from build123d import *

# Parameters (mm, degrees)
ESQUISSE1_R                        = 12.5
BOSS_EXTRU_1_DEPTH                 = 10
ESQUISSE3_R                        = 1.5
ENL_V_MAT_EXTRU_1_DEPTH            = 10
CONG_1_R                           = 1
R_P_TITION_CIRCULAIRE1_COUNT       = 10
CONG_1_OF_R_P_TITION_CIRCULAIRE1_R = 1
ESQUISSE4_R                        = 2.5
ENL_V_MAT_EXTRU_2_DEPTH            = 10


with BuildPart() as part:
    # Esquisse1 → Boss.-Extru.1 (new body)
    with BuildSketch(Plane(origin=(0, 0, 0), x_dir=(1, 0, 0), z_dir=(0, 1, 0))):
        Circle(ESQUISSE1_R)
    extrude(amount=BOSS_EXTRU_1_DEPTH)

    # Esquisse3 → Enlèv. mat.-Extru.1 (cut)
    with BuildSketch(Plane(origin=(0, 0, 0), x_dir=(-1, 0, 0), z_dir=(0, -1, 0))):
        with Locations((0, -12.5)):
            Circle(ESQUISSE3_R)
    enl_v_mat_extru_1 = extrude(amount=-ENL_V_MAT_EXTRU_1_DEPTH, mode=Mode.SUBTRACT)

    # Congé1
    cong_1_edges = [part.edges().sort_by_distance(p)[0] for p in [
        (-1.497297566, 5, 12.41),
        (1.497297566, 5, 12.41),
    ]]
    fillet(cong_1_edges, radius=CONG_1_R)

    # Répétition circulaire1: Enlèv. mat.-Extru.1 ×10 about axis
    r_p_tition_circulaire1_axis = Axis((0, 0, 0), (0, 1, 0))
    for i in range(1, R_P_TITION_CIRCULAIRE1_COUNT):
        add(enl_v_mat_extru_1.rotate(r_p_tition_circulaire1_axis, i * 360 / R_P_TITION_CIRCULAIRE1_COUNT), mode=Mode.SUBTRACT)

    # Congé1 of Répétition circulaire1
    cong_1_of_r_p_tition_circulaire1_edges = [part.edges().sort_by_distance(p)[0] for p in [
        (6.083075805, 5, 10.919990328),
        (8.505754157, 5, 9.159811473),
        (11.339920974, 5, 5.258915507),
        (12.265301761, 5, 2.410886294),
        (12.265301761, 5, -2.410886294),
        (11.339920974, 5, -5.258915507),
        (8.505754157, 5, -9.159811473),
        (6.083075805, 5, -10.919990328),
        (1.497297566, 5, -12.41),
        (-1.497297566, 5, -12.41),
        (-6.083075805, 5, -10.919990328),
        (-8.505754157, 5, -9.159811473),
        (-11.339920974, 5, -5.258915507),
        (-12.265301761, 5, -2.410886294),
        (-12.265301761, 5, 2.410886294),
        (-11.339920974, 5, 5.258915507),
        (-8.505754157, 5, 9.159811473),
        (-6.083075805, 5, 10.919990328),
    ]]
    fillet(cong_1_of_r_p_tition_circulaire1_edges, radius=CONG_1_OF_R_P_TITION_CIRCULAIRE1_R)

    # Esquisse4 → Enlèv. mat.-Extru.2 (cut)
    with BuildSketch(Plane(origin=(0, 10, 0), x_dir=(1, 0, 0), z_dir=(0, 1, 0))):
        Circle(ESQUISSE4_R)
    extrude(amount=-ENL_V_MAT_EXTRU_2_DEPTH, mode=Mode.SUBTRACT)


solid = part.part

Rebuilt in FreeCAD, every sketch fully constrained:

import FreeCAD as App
import Part
import Sketcher
from FreeCAD import Vector
Q = App.Units.Quantity


def edges_at(feature, points):
    """Names of the edges that pass closest to the given points."""
    edges = feature.Shape.Edges
    near = lambda p: min(range(len(edges)), key=lambda i: edges[i].distToShape(Part.Vertex(*p))[0])
    return sorted({f"Edge{near(p) + 1}" for p in points})

doc = App.newDocument("Part")
body = doc.addObject("PartDesign::Body", "Body")

sketch1 = body.newObject("Sketcher::SketchObject", "Sketch")
sketch1.AttachmentSupport = (doc.getObject("XZ_Plane"), [""])
sketch1.MapMode = "FlatFace"
sketch1.addGeometry(Part.Circle(Vector(0, 0, 0), Vector(0, 0, 1), 12.5), False)
sketch1.addConstraint(Sketcher.Constraint("Coincident", 0, 3, -1, 1))
sketch1.addConstraint(Sketcher.Constraint("Diameter", 0, Q("25 mm")))
pad1 = body.newObject("PartDesign::Pad", "Pad")
pad1.Profile = sketch1
pad1.Length = 10
pad1.Reversed = True

sketch2 = body.newObject("Sketcher::SketchObject", "Sketch001")
sketch2.AttachmentSupport = (doc.getObject("XZ_Plane"), [""])
sketch2.MapMode = "FlatFace"
sketch2.addGeometry(Part.Circle(Vector(0, 12.5, 0), Vector(0, 0, 1), 1.5), False)
sketch2.addConstraint(Sketcher.Constraint("PointOnObject", 0, 3, -2))
sketch2.addConstraint(Sketcher.Constraint("Diameter", 0, Q("3 mm")))
sketch2.addConstraint(Sketcher.Constraint("DistanceY", -1, 1, 0, 3, Q("12.5 mm")))
pocket1 = body.newObject("PartDesign::Pocket", "Pocket")
pocket1.Profile = sketch2
pocket1.Length = 10
doc.recompute()

fillet = body.newObject("PartDesign::Fillet", "Fillet")
fillet.Base = (pocket1, edges_at(pocket1, [(-1.497, 5, 12.41), (1.497, 5, 12.41)]))
fillet.Radius = 1
doc.recompute()

polarpattern = body.newObject("PartDesign::PolarPattern", "PolarPattern")
polarpattern.Originals = [pocket1]
polarpattern.Axis = (doc.getObject("Y_Axis"), [""])
polarpattern.Angle = 360
polarpattern.Occurrences = 10
body.Tip = polarpattern
doc.recompute()

fillet2 = body.newObject("PartDesign::Fillet", "Fillet001")
fillet2.Base = (polarpattern, edges_at(polarpattern, [
    (6.083, 5, 10.92),
    (8.506, 5, 9.16),
    (11.34, 5, 5.259),
    (12.265, 5, 2.411),
    (12.265, 5, -2.411),
    (11.34, 5, -5.259),
    (8.506, 5, -9.16),
    (6.083, 5, -10.92),
    (1.497, 5, -12.41),
    (-1.497, 5, -12.41),
    (-6.083, 5, -10.92),
    (-8.506, 5, -9.16),
    (-11.34, 5, -5.259),
    (-12.265, 5, -2.411),
    (-12.265, 5, 2.411),
    (-11.34, 5, 5.259),
    (-8.506, 5, 9.16),
    (-6.083, 5, 10.92),
]))
fillet2.Radius = 1

sketch3 = body.newObject("Sketcher::SketchObject", "Sketch002")
sketch3.AttachmentSupport = (doc.getObject("XZ_Plane"), [""])
sketch3.MapMode = "FlatFace"
sketch3.AttachmentOffset = App.Placement(Vector(0, 0, -10), App.Rotation())
sketch3.addGeometry(Part.Circle(Vector(0, 0, 0), Vector(0, 0, 1), 2.5), False)
sketch3.addConstraint(Sketcher.Constraint("Coincident", 0, 3, -1, 1))
sketch3.addConstraint(Sketcher.Constraint("Diameter", 0, Q("5 mm")))
pocket2 = body.newObject("PartDesign::Pocket", "Pocket001")
pocket2.Profile = sketch3
pocket2.Length = 10
pocket2.Reversed = True

doc.recompute()
